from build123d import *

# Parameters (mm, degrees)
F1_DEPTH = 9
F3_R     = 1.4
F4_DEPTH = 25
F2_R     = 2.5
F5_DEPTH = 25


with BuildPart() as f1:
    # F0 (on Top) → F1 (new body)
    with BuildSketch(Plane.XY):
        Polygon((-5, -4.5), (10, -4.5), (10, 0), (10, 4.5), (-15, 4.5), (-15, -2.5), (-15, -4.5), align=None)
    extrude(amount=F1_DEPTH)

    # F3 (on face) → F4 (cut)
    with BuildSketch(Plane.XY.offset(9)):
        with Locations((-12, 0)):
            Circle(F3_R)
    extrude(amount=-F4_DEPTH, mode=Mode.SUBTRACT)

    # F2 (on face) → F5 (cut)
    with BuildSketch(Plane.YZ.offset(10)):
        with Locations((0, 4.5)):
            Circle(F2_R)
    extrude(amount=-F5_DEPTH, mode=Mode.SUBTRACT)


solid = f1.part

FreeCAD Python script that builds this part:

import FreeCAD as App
import Part
import Sketcher

V = App.Vector


def add_polygon(sketch, points):
    """Adds a closed chain of lines whose ends are joined by coincident constraints."""
    first, n = sketch.GeometryCount, len(points)
    for a, b in zip(points, points[1:] + points[:1]):
        sketch.addGeometry(Part.LineSegment(App.Vector(*a, 0), App.Vector(*b, 0)), False)
    for i in range(n):
        sketch.addConstraint(Sketcher.Constraint("Coincident", first + i, 2, first + (i + 1) % n, 1))

doc = App.newDocument("Part")
body = doc.addObject("PartDesign::Body", "Body")

sketch1 = body.newObject("Sketcher::SketchObject", "Sketch")
sketch1.AttachmentSupport = (doc.getObject("XY_Plane"), [""])
sketch1.MapMode = "FlatFace"
add_polygon(sketch1, [(10, -4.5), (10, 4.5), (-15, 4.5), (-15, -4.5)])
sketch1.addConstraint([
    Sketcher.Constraint("Vertical", 0),
    Sketcher.Constraint("Horizontal", 1),
    Sketcher.Constraint("Vertical", 2),
    Sketcher.Constraint("Horizontal", 3),
    Sketcher.Constraint("DistanceX", 1, 2, 1, 1, 25.0),
    Sketcher.Constraint("DistanceY", 0, 1, 0, 2, 9.0),
    Sketcher.Constraint("DistanceX", -1, 1, 0, 2, 10.0),
    Sketcher.Constraint("DistanceY", -1, 1, 0, 2, 4.5),
])
pad1 = body.newObject("PartDesign::Pad", "Pad")
pad1.Profile = sketch1
pad1.Length = 9

sketch2 = body.newObject("Sketcher::SketchObject", "Sketch001")
sketch2.AttachmentSupport = (doc.getObject("XY_Plane"), [""])
sketch2.MapMode = "FlatFace"
sketch2.AttachmentOffset = App.Placement(V(0, 0, 9), App.Rotation())
sketch2.addGeometry(Part.Circle(V(-12, 0, 0), V(0, 0, 1), 1.4), False)
sketch2.addConstraint([
    Sketcher.Constraint("PointOnObject", 0, 3, -1),
    Sketcher.Constraint("Diameter", 0, 2.8),
    Sketcher.Constraint("DistanceX", 0, 3, -1, 1, 12.0),
])
pocket1 = body.newObject("PartDesign::Pocket", "Pocket")
pocket1.Profile = sketch2
pocket1.Length = 25

sketch3 = body.newObject("Sketcher::SketchObject", "Sketch002")
sketch3.AttachmentSupport = (doc.getObject("YZ_Plane"), [""])
sketch3.MapMode = "FlatFace"
sketch3.AttachmentOffset = App.Placement(V(0, 0, 10), App.Rotation())
sketch3.addGeometry(Part.Circle(V(0, 4.5, 0), V(0, 0, 1), 2.5), False)
sketch3.addConstraint([
    Sketcher.Constraint("PointOnObject", 0, 3, -2),
    Sketcher.Constraint("Diameter", 0, 5.0),
    Sketcher.Constraint("DistanceY", -1, 1, 0, 3, 4.5),
])
pocket2 = body.newObject("PartDesign::Pocket", "Pocket001")
pocket2.Profile = sketch3
pocket2.Length = 25

doc.recompute()
